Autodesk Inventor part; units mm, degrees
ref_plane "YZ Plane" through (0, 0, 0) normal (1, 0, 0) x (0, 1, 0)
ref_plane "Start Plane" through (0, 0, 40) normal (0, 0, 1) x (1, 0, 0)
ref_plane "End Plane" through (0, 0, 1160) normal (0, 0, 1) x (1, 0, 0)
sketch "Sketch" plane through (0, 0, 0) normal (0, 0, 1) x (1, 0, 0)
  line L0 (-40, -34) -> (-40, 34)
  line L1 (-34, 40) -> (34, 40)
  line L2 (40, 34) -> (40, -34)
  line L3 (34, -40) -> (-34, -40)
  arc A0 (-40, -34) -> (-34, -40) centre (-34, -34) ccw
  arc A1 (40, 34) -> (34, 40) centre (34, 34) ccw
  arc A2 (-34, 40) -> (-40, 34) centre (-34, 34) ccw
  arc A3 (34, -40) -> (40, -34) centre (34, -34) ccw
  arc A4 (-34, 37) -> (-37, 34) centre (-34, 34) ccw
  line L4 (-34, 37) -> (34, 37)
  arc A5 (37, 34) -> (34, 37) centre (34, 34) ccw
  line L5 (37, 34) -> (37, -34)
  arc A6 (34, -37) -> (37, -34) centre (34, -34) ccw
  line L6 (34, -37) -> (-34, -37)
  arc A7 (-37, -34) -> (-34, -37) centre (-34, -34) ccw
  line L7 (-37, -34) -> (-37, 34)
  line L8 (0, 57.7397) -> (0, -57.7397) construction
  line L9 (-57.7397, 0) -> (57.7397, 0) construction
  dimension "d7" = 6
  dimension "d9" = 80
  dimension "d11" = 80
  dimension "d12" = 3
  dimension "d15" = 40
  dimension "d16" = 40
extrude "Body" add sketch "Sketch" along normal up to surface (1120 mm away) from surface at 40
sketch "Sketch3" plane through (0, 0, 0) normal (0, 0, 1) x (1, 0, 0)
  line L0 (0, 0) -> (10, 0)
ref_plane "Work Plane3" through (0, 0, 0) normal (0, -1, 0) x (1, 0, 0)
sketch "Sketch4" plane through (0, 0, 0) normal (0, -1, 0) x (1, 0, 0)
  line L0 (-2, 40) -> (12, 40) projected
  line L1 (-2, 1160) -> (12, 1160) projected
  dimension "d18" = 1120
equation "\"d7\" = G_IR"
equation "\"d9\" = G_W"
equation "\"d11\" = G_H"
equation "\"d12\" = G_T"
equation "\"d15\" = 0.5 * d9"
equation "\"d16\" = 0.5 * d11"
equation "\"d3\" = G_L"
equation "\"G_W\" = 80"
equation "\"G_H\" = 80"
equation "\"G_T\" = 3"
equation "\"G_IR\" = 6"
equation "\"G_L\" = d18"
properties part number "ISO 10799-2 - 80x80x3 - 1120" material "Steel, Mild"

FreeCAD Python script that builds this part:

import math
import FreeCAD as App
import Part
import Sketcher
from FreeCAD import Vector

doc = App.newDocument("Part")
body = doc.addObject("PartDesign::Body", "Body")

sketch1 = body.newObject("Sketcher::SketchObject", "Sketch")
sketch1.AttachmentSupport = (doc.getObject("XY_Plane"), [""])
sketch1.MapMode = "FlatFace"
sketch1.AttachmentOffset = App.Placement(Vector(0, 0, 40), App.Rotation())
sketch1.addGeometry(Part.LineSegment(Vector(-40, 34, 0), Vector(-40, -34, 0)), False)
sketch1.addGeometry(Part.ArcOfCircle(Part.Circle(Vector(-34, -34, 0), Vector(0, 0, 1), 6), math.radians(180), math.radians(270)), False)
sketch1.addGeometry(Part.LineSegment(Vector(-34, -40, 0), Vector(34, -40, 0)), False)
sketch1.addGeometry(Part.ArcOfCircle(Part.Circle(Vector(34, -34, 0), Vector(0, 0, 1), 6), math.radians(-90), math.radians(0)), False)
sketch1.addGeometry(Part.LineSegment(Vector(40, -34, 0), Vector(40, 34, 0)), False)
sketch1.addGeometry(Part.ArcOfCircle(Part.Circle(Vector(34, 34, 0), Vector(0, 0, 1), 6), math.radians(0), math.radians(90)), False)
sketch1.addGeometry(Part.LineSegment(Vector(34, 40, 0), Vector(-34, 40, 0)), False)
sketch1.addGeometry(Part.ArcOfCircle(Part.Circle(Vector(-34, 34, 0), Vector(0, 0, 1), 6), math.radians(90), math.radians(180)), False)
sketch1.addGeometry(Part.ArcOfCircle(Part.Circle(Vector(-34, 34, 0), Vector(0, 0, 1), 3), math.radians(90), math.radians(180)), False)
sketch1.addGeometry(Part.LineSegment(Vector(-34, 37, 0), Vector(34, 37, 0)), False)
sketch1.addGeometry(Part.ArcOfCircle(Part.Circle(Vector(34, 34, 0), Vector(0, 0, 1), 3), math.radians(0), math.radians(90)), False)
sketch1.addGeometry(Part.LineSegment(Vector(37, 34, 0), Vector(37, -34, 0)), False)
sketch1.addGeometry(Part.ArcOfCircle(Part.Circle(Vector(34, -34, 0), Vector(0, 0, 1), 3), math.radians(-90), math.radians(0)), False)
sketch1.addGeometry(Part.LineSegment(Vector(34, -37, 0), Vector(-34, -37, 0)), False)
sketch1.addGeometry(Part.ArcOfCircle(Part.Circle(Vector(-34, -34, 0), Vector(0, 0, 1), 3), math.radians(180), math.radians(270)), False)
sketch1.addGeometry(Part.LineSegment(Vector(-37, -34, 0), Vector(-37, 34, 0)), False)
sketch1.addConstraint(Sketcher.Constraint("Tangent", 0, 2, 1, 1))
sketch1.addConstraint(Sketcher.Constraint("Tangent", 1, 2, 2, 1))
sketch1.addConstraint(Sketcher.Constraint("Tangent", 2, 2, 3, 1))
sketch1.addConstraint(Sketcher.Constraint("Tangent", 3, 2, 4, 1))
sketch1.addConstraint(Sketcher.Constraint("Tangent", 4, 2, 5, 1))
sketch1.addConstraint(Sketcher.Constraint("Tangent", 5, 2, 6, 1))
sketch1.addConstraint(Sketcher.Constraint("Tangent", 6, 2, 7, 1))
sketch1.addConstraint(Sketcher.Constraint("Tangent", 7, 2, 0, 1))
sketch1.addConstraint(Sketcher.Constraint("Tangent", 8, 1, 9, 1))
sketch1.addConstraint(Sketcher.Constraint("Tangent", 9, 2, 10, 2))
sketch1.addConstraint(Sketcher.Constraint("Tangent", 10, 1, 11, 1))
sketch1.addConstraint(Sketcher.Constraint("Tangent", 11, 2, 12, 2))
sketch1.addConstraint(Sketcher.Constraint("Tangent", 12, 1, 13, 1))
sketch1.addConstraint(Sketcher.Constraint("Tangent", 13, 2, 14, 2))
sketch1.addConstraint(Sketcher.Constraint("Tangent", 14, 1, 15, 1))
sketch1.addConstraint(Sketcher.Constraint("Tangent", 15, 2, 8, 2))
sketch1.addConstraint(Sketcher.Constraint("Vertical", 0))
sketch1.addConstraint(Sketcher.Constraint("Horizontal", 2))
sketch1.addConstraint(Sketcher.Constraint("Vertical", 4))
sketch1.addConstraint(Sketcher.Constraint("Horizontal", 6))
sketch1.addConstraint(Sketcher.Constraint("Horizontal", 9))
sketch1.addConstraint(Sketcher.Constraint("Vertical", 11))
sketch1.addConstraint(Sketcher.Constraint("Horizontal", 13))
sketch1.addConstraint(Sketcher.Constraint("Vertical", 15))
sketch1.addConstraint(Sketcher.Constraint("Coincident", 8, 3, 7, 3))
sketch1.addConstraint(Sketcher.Constraint("Coincident", 10, 3, 5, 3))
sketch1.addConstraint(Sketcher.Constraint("Coincident", 12, 3, 3, 3))
sketch1.addConstraint(Sketcher.Constraint("Equal", 1, 3))
sketch1.addConstraint(Sketcher.Constraint("Equal", 3, 5))
sketch1.addConstraint(Sketcher.Constraint("Equal", 5, 7))
sketch1.addConstraint(Sketcher.Constraint("Equal", 12, 14))
sketch1.addConstraint(Sketcher.Constraint("Symmetric", 1, 3, 5, 3, -1, 1))
sketch1.addConstraint(Sketcher.Constraint("Equal", 13, 0))
sketch1.addConstraint(Sketcher.Constraint("Radius", 1, 6.0))
sketch1.addConstraint(Sketcher.Constraint("Radius", 8, 3.0))
sketch1.addConstraint(Sketcher.Constraint("DistanceX", 0, 2, -1, 1, 40.0))
pad1 = body.newObject("PartDesign::Pad", "Pad")
pad1.Profile = sketch1
pad1.Length = 1120

doc.recompute()
